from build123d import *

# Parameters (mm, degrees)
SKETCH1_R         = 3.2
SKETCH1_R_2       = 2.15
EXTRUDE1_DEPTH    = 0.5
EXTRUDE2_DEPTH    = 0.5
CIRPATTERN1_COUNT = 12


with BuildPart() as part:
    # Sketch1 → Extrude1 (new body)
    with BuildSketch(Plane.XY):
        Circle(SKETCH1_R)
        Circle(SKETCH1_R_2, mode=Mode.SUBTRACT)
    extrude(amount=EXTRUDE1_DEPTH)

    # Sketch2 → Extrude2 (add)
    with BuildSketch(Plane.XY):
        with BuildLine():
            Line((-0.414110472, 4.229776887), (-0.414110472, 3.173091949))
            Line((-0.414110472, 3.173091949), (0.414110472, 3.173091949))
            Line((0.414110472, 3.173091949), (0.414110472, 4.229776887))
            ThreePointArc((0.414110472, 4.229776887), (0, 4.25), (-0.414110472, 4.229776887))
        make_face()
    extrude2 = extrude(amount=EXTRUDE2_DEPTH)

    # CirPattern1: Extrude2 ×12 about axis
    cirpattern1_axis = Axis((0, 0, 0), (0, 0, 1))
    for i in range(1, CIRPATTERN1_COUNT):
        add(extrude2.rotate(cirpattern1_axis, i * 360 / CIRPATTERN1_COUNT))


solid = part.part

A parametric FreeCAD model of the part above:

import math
import FreeCAD as App
import Part
import Sketcher

doc = App.newDocument("Part")
params = doc.addObject("Spreadsheet::Sheet", "Params")
for row, (alias, value) in enumerate([
    ("sketch1_diameter", "6.4 mm"),
    ("sketch1_diameter2", "4.3 mm"),
    ("pad1_length", "0.5 mm"),
    ("sketch2_radius", "4.25 mm"),
    ("pad2_length", "0.5 mm"),
], start=1):
    params.set(f"A{row}", alias)
    params.set(f"B{row}", "=" + value)
    params.setAlias(f"B{row}", alias)

body = doc.addObject("PartDesign::Body", "Body")

# Sketch on XY plane
sketch1 = doc.addObject("Sketcher::SketchObject", "Sketch")
body.addObject(sketch1)
sketch1.AttachmentSupport = (doc.XY_Plane, [""])
sketch1.MapMode = "FlatFace"
sketch1.addGeometry([
    Part.Circle(App.Vector(0, 0, 0), App.Vector(0, 0, 1), 3.2),
    Part.Circle(App.Vector(0, 0, 0), App.Vector(0, 0, 1), 2.15),
], False)
sketch1.addConstraint([
    Sketcher.Constraint("Coincident", 0, 3, -1, 1),
    Sketcher.Constraint("Coincident", 1, 3, -1, 1),
    Sketcher.Constraint("Diameter", 0, 6.4),
    Sketcher.Constraint("Diameter", 1, 4.3),
])
sketch1.setExpression("Constraints[2]", "Params.sketch1_diameter")
sketch1.setExpression("Constraints[3]", "Params.sketch1_diameter2")
pad1 = doc.addObject("PartDesign::Pad", "Pad")
body.addObject(pad1)
pad1.Profile = sketch1
pad1.setExpression("Length", "Params.pad1_length")

# Sketch on XY plane
sketch2 = doc.addObject("Sketcher::SketchObject", "Sketch001")
body.addObject(sketch2)
sketch2.AttachmentSupport = (doc.XY_Plane, [""])
sketch2.MapMode = "FlatFace"
sketch2.addGeometry([
    Part.LineSegment(App.Vector(-0.41411, 4.229777, 0), App.Vector(-0.41411, 3.173092, 0)),
    Part.LineSegment(App.Vector(-0.41411, 3.173092, 0), App.Vector(0.41411, 3.173092, 0)),
    Part.LineSegment(App.Vector(0.41411, 3.173092, 0), App.Vector(0.41411, 4.229777, 0)),
    Part.ArcOfCircle(Part.Circle(App.Vector(0, 0, 0), App.Vector(0, 0, 1), 4.25), math.radians(84.408356), math.radians(95.591644)),
], False)
sketch2.addConstraint([
    Sketcher.Constraint("Coincident", 0, 2, 1, 1),
    Sketcher.Constraint("Coincident", 1, 2, 2, 1),
    Sketcher.Constraint("Coincident", 2, 2, 3, 1),
    Sketcher.Constraint("Coincident", 3, 2, 0, 1),
    Sketcher.Constraint("Vertical", 0),
    Sketcher.Constraint("Horizontal", 1),
    Sketcher.Constraint("Vertical", 2),
    Sketcher.Constraint("Coincident", 3, 3, -1, 1),
    Sketcher.Constraint("Horizontal", 2, 2, 3, 2),
    Sketcher.Constraint("Radius", 3, 4.25),
    Sketcher.Constraint("DistanceX", 1, 1, 1, 2, 0.828221),
    Sketcher.Constraint("DistanceY", 0, 2, 0, 1, 1.056685),
])
sketch2.setExpression("Constraints[9]", "Params.sketch2_radius")
pad2 = doc.addObject("PartDesign::Pad", "Pad001")
body.addObject(pad2)
pad2.Profile = sketch2
pad2.setExpression("Length", "Params.pad2_length")
doc.recompute()

polarpattern = doc.addObject("PartDesign::PolarPattern", "PolarPattern")
body.addObject(polarpattern)
polarpattern.Originals = [pad2]
polarpattern.Axis = (doc.Z_Axis, [""])
polarpattern.Angle = 360
polarpattern.Occurrences = 12
body.Tip = polarpattern

doc.recompute()
